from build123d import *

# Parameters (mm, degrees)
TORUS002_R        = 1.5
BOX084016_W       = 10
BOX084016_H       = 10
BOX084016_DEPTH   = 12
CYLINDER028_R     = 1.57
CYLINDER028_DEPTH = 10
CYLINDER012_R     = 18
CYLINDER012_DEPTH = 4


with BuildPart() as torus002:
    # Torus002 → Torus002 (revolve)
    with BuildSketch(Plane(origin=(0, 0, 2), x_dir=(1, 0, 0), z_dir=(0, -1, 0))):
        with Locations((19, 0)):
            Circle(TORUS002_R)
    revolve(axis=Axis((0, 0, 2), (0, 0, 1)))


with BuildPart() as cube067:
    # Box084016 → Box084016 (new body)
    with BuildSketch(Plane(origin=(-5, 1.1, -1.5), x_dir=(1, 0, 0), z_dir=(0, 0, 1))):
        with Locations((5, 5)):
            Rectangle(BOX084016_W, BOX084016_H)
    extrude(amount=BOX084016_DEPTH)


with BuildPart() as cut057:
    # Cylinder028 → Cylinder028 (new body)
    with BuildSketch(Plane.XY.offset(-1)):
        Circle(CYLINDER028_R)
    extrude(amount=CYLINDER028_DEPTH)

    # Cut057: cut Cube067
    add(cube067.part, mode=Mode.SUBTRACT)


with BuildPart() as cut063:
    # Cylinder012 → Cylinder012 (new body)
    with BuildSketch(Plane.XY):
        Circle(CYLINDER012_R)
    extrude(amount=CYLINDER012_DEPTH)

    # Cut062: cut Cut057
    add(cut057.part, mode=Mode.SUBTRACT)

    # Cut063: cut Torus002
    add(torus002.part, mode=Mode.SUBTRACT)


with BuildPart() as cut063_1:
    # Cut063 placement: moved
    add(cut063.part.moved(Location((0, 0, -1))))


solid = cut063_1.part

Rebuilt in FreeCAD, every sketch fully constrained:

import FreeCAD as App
import Part
import Sketcher

V = App.Vector

doc = App.newDocument("Part")
body = doc.addObject("PartDesign::Body", "Body")

sketch1 = doc.addObject("Sketcher::SketchObject", "Sketch")
body.addObject(sketch1)
sketch1.AttachmentSupport = (doc.XZ_Plane, [""])
sketch1.MapMode = "FlatFace"
sketch1.addGeometry(Part.Circle(V(19, 2, 0), V(0, 0, 1), 1.5), False)
sketch1.addConstraint(Sketcher.Constraint("Diameter", 0, 3.0))
sketch1.addConstraint(Sketcher.Constraint("DistanceX", -1, 1, 0, 3, 19.0))
sketch1.addConstraint(Sketcher.Constraint("DistanceY", -1, 1, 0, 3, 2.0))
revolution = doc.addObject("PartDesign::Revolution", "Revolution")
body.addObject(revolution)
revolution.Profile = sketch1
revolution.ReferenceAxis = (sketch1, ["V_Axis"])
revolution.Angle = 360
body2 = doc.addObject("PartDesign::Body", "Body001")

sketch2 = doc.addObject("Sketcher::SketchObject", "Sketch001")
body2.addObject(sketch2)
sketch2.AttachmentSupport = (doc.getObject("XY_Plane001"), [""])
sketch2.MapMode = "FlatFace"
sketch2.AttachmentOffset = App.Placement(V(0, 0, -1.5), App.Rotation())
sketch2.addGeometry(Part.LineSegment(V(-5, 11, 0), V(-5, 1, 0)), False)
sketch2.addGeometry(Part.LineSegment(V(-5, 1, 0), V(5, 1, 0)), False)
sketch2.addGeometry(Part.LineSegment(V(5, 1, 0), V(5, 11, 0)), False)
sketch2.addGeometry(Part.LineSegment(V(5, 11, 0), V(-5, 11, 0)), False)
sketch2.addConstraint(Sketcher.Constraint("Coincident", 0, 2, 1, 1))
sketch2.addConstraint(Sketcher.Constraint("Coincident", 1, 2, 2, 1))
sketch2.addConstraint(Sketcher.Constraint("Coincident", 2, 2, 3, 1))
sketch2.addConstraint(Sketcher.Constraint("Coincident", 3, 2, 0, 1))
sketch2.addConstraint(Sketcher.Constraint("Vertical", 0))
sketch2.addConstraint(Sketcher.Constraint("Horizontal", 1))
sketch2.addConstraint(Sketcher.Constraint("Vertical", 2))
sketch2.addConstraint(Sketcher.Constraint("Horizontal", 3))
sketch2.addConstraint(Sketcher.Constraint("Equal", 3, 0))
sketch2.addConstraint(Sketcher.Constraint("DistanceX", 1, 1, 1, 2, 10.0))
sketch2.addConstraint(Sketcher.Constraint("DistanceX", 0, 2, -1, 1, 5.0))
sketch2.addConstraint(Sketcher.Constraint("DistanceY", -1, 1, 0, 2, 1.1))
pad1 = doc.addObject("PartDesign::Pad", "Pad")
body2.addObject(pad1)
pad1.Profile = sketch2
pad1.Length = 12
body3 = doc.addObject("PartDesign::Body", "Body002")

sketch3 = doc.addObject("Sketcher::SketchObject", "Sketch002")
body3.addObject(sketch3)
sketch3.AttachmentSupport = (doc.getObject("XY_Plane002"), [""])
sketch3.MapMode = "FlatFace"
sketch3.AttachmentOffset = App.Placement(V(0, 0, -1), App.Rotation())
sketch3.addGeometry(Part.Circle(V(0, 0, 0), V(0, 0, 1), 1.6), False)
sketch3.addConstraint(Sketcher.Constraint("Coincident", 0, 3, -1, 1))
sketch3.addConstraint(Sketcher.Constraint("Diameter", 0, 3.14))
pad2 = doc.addObject("PartDesign::Pad", "Pad001")
body3.addObject(pad2)
pad2.Profile = sketch3
pad2.Length = 10
doc.recompute()

boolean = doc.addObject("PartDesign::Boolean", "Boolean")
body3.addObject(boolean)
boolean.Type = "Cut"
boolean.addObjects([body2])
body4 = doc.addObject("PartDesign::Body", "Body003")

sketch4 = doc.addObject("Sketcher::SketchObject", "Sketch003")
body4.addObject(sketch4)
sketch4.AttachmentSupport = (doc.getObject("XY_Plane003"), [""])
sketch4.MapMode = "FlatFace"
sketch4.addGeometry(Part.Circle(V(0, 0, 0), V(0, 0, 1), 18), False)
sketch4.addConstraint(Sketcher.Constraint("Coincident", 0, 3, -1, 1))
sketch4.addConstraint(Sketcher.Constraint("Diameter", 0, 36.0))
pad3 = doc.addObject("PartDesign::Pad", "Pad002")
body4.addObject(pad3)
pad3.Profile = sketch4
pad3.Length = 4
doc.recompute()

boolean2 = doc.addObject("PartDesign::Boolean", "Boolean001")
body4.addObject(boolean2)
boolean2.Type = "Cut"
boolean2.addObjects([body3])
doc.recompute()

boolean3 = doc.addObject("PartDesign::Boolean", "Boolean002")
body4.addObject(boolean3)
boolean3.Type = "Cut"
boolean3.addObjects([body])
body5 = doc.addObject("PartDesign::Body", "Body004")
doc.recompute()

body4.Placement = App.Placement(V(0, 0, -1), App.Rotation(V(0, 0, 1), 0))
boolean4 = doc.addObject("PartDesign::Boolean", "Boolean003")
body5.addObject(boolean4)
boolean4.Type = "Fuse"
boolean4.addObjects([body4])

doc.recompute()
